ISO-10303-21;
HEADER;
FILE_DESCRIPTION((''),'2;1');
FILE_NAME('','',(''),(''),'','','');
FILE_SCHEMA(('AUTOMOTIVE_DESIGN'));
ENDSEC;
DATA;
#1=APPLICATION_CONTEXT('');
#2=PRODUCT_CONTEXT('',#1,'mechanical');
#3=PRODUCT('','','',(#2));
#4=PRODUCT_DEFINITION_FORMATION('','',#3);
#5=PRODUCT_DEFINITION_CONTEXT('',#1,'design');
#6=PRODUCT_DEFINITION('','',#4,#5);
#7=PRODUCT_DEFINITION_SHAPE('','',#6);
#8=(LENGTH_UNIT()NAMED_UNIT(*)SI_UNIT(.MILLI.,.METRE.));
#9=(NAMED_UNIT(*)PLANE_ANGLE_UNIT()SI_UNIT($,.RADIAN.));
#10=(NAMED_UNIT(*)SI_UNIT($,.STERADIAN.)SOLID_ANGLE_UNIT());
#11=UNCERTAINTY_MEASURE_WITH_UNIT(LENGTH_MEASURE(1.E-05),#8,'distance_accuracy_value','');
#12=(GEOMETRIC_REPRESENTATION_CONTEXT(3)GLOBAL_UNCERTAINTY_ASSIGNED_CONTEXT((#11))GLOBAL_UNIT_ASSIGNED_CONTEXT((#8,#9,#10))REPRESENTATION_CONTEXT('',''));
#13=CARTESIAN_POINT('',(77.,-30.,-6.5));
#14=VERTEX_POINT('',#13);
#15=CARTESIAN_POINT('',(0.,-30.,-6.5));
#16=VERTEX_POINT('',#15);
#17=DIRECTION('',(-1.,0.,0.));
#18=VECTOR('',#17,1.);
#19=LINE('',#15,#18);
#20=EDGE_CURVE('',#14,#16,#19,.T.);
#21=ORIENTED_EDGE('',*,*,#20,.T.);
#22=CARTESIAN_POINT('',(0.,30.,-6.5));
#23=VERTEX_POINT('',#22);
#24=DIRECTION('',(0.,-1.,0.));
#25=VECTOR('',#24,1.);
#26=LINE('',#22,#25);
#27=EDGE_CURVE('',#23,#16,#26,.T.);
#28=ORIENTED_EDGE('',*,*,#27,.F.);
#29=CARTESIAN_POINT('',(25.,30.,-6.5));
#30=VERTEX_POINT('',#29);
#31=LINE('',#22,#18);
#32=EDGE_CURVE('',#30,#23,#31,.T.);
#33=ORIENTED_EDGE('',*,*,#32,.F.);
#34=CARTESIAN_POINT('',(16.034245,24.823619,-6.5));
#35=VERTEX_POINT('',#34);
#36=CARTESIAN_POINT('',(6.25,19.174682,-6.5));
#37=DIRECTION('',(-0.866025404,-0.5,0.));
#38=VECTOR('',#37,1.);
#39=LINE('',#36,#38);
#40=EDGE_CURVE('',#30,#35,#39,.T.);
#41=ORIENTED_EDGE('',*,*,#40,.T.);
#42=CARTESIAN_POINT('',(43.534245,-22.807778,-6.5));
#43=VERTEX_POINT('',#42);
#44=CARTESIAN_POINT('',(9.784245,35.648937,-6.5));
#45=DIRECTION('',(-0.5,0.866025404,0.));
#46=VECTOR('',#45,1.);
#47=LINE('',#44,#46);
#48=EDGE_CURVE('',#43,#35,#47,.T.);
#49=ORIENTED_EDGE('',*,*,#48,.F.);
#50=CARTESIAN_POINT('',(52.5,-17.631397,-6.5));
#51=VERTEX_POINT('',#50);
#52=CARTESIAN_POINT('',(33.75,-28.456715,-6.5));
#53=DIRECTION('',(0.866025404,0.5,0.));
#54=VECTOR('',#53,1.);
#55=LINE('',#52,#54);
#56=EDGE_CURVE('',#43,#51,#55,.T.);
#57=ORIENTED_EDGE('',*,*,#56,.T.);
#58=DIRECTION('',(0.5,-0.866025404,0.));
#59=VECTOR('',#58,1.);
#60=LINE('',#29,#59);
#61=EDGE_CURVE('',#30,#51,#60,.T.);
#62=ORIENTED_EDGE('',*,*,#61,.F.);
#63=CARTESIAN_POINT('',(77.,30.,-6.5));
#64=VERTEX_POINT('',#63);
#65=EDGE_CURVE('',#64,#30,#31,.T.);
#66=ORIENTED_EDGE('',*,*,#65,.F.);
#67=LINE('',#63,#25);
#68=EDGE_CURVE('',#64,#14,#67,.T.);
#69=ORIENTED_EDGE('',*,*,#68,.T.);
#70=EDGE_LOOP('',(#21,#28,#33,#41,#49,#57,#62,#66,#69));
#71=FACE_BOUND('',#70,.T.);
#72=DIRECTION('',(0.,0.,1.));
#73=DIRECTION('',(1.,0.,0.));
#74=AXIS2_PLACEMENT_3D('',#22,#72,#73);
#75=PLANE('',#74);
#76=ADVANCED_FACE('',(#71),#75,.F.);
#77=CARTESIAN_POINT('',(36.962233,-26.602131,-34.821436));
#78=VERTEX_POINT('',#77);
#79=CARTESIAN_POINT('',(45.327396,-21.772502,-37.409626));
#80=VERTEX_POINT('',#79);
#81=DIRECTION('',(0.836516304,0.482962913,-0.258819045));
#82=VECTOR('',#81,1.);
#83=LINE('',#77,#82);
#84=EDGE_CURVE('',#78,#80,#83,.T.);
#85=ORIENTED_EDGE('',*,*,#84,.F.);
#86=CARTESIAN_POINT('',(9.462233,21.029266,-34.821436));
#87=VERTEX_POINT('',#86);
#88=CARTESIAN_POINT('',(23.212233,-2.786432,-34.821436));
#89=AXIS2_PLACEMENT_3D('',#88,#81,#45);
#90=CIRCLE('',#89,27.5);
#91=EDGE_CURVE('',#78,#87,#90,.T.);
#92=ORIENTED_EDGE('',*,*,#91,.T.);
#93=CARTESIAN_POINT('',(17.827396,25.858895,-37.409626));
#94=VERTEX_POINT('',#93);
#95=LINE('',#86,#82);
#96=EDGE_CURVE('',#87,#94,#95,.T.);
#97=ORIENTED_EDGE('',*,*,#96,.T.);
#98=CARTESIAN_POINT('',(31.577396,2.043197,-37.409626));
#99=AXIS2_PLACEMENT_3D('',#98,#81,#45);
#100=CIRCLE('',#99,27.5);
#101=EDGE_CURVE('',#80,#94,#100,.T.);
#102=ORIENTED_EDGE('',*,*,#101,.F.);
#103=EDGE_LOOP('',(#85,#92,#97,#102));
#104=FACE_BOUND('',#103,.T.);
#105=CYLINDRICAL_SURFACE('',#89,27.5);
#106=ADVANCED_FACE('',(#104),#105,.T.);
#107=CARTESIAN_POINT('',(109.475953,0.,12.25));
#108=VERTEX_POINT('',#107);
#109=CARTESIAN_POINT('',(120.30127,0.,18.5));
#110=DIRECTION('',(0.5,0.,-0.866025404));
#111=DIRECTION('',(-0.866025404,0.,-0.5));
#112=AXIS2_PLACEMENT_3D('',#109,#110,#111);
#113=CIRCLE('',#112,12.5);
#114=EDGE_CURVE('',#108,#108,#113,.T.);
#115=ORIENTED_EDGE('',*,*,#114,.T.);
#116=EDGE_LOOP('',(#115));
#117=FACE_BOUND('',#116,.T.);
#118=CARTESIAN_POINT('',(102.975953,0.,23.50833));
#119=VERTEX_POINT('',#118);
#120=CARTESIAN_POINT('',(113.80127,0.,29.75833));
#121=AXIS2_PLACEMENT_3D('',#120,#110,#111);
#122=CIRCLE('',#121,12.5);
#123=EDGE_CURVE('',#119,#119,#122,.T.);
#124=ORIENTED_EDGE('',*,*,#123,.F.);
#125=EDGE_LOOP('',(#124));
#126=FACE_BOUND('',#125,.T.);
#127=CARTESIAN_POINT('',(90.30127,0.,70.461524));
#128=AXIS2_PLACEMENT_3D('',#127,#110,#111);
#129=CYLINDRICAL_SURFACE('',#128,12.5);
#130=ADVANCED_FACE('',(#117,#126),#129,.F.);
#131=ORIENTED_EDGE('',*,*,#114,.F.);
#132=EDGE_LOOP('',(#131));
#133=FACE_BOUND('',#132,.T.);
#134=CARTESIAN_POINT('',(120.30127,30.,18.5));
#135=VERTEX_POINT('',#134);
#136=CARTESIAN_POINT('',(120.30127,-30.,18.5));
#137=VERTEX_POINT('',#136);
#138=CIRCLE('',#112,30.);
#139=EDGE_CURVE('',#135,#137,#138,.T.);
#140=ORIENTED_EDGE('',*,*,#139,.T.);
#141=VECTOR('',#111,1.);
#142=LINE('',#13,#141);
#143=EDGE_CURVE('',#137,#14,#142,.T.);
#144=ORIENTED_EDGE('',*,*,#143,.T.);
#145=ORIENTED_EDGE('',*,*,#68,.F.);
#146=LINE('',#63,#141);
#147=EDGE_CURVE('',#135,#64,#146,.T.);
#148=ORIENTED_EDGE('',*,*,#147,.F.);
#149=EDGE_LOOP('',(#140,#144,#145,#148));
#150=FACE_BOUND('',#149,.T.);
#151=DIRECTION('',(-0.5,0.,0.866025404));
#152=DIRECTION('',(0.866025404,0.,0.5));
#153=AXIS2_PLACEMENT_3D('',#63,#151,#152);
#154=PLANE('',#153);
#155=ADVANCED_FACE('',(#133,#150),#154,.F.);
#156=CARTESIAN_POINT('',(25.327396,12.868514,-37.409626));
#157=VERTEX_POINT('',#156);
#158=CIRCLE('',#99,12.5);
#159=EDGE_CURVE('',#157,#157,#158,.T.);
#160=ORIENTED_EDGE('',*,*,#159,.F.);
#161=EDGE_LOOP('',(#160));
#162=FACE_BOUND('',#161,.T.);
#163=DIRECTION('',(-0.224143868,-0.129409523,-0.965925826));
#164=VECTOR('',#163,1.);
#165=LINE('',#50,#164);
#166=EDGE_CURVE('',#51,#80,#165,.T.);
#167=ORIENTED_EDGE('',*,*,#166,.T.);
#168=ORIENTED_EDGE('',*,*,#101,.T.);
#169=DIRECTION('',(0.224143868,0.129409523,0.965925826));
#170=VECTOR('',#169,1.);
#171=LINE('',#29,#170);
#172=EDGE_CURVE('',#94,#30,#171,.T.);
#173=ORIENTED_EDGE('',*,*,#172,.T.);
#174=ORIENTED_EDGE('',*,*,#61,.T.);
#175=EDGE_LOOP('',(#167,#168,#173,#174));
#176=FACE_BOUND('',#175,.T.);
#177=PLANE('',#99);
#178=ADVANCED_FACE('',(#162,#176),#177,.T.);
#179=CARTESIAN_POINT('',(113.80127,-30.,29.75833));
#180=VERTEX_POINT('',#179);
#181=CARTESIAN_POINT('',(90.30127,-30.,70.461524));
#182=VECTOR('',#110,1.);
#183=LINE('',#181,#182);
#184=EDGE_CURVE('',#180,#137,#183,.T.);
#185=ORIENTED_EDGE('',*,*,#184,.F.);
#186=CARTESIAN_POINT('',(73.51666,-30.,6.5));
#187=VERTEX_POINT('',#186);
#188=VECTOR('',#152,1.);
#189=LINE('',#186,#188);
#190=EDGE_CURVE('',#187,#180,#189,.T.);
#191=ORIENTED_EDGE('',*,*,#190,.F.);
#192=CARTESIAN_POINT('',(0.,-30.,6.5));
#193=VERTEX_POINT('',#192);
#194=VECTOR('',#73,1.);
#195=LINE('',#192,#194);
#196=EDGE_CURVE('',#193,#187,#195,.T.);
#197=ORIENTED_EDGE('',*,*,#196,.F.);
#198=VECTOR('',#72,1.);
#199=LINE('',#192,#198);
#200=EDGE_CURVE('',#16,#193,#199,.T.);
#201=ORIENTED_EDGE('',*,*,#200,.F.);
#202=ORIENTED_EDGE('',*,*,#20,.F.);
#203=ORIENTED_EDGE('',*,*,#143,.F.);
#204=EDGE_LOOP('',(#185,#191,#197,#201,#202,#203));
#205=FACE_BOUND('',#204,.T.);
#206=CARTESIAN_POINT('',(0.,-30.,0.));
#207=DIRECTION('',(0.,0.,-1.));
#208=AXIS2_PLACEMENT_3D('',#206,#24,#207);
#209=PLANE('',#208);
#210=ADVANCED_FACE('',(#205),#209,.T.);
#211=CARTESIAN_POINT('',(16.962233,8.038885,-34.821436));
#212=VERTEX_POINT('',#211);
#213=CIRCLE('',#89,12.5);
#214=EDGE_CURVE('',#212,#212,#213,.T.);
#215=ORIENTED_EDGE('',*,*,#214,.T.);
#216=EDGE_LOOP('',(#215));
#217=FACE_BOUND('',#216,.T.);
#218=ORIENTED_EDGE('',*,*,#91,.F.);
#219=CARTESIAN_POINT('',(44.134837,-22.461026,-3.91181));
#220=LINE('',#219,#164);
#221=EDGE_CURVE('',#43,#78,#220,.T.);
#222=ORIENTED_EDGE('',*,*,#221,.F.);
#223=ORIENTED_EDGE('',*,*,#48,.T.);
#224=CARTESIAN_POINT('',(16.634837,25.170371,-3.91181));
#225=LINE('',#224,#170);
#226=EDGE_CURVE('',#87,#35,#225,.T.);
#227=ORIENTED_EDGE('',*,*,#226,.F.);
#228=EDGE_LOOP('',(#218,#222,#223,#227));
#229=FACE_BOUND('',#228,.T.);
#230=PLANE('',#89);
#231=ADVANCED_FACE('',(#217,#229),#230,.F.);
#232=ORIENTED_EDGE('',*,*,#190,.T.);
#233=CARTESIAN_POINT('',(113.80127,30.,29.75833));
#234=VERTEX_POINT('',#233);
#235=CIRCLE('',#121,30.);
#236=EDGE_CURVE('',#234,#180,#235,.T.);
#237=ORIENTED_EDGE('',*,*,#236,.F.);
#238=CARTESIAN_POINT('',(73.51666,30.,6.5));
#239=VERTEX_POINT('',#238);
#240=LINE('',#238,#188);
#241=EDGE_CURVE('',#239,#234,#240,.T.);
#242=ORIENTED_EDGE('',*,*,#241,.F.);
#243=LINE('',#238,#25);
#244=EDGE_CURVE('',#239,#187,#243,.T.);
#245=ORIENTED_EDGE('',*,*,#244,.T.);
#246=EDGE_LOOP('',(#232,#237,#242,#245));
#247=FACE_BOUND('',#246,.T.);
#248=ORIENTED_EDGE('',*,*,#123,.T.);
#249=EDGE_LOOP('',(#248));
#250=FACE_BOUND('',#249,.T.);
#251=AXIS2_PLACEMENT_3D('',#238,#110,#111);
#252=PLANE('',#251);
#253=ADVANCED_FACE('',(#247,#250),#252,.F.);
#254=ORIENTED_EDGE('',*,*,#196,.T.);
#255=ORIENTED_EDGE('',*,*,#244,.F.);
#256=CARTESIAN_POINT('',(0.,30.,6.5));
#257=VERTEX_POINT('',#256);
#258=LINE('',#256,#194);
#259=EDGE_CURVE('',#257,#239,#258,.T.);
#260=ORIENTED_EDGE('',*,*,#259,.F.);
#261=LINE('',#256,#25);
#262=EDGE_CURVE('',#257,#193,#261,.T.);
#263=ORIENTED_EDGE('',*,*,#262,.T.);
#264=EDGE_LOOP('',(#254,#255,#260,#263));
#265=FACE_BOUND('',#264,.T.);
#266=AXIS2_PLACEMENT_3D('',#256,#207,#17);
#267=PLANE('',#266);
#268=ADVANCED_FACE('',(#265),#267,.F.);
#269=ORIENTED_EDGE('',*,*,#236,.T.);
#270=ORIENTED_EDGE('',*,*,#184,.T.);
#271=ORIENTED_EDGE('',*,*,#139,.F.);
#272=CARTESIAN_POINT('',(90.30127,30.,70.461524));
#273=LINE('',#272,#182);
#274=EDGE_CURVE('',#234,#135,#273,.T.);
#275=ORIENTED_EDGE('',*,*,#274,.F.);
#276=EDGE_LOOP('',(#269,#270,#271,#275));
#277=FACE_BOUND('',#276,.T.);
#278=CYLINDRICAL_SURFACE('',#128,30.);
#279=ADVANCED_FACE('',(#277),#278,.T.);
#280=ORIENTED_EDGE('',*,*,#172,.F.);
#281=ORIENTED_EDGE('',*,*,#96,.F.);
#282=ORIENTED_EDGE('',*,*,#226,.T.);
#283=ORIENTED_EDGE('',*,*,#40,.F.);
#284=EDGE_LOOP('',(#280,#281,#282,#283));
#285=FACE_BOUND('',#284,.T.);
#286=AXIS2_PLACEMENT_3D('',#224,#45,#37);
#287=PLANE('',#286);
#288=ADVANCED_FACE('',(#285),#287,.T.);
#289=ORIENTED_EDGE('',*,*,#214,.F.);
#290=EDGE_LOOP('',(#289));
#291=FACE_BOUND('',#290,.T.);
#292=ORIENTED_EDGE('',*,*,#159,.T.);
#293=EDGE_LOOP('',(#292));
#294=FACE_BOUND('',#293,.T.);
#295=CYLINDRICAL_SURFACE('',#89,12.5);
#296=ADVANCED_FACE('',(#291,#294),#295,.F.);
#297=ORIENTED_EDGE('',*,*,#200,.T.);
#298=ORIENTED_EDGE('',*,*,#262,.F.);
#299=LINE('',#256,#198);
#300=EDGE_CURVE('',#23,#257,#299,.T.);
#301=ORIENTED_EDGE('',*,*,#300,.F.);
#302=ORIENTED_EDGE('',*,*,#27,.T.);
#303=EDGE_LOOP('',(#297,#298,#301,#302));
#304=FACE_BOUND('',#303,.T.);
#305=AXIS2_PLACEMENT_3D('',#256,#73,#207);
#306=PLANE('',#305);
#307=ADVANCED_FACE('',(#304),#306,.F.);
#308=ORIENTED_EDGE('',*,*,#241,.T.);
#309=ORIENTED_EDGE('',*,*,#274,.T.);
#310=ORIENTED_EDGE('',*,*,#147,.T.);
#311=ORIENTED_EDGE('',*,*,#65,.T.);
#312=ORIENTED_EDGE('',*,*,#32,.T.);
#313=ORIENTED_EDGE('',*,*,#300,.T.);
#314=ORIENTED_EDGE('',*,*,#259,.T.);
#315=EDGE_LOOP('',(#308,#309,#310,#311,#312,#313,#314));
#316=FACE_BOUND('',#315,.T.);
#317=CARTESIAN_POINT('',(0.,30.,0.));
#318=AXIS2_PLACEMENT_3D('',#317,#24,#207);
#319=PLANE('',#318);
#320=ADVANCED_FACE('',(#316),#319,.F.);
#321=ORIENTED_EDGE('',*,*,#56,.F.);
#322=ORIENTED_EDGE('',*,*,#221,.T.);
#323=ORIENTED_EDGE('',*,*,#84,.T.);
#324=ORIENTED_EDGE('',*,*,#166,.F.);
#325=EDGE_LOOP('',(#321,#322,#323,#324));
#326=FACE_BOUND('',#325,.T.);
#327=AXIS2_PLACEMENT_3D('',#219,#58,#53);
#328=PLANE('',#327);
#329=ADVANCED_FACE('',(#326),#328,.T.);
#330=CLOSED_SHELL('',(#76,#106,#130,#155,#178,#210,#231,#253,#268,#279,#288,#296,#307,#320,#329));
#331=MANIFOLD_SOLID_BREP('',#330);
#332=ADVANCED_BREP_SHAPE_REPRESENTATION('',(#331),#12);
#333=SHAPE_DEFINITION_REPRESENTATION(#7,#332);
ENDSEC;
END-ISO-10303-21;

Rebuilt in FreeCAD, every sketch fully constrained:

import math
import FreeCAD as App
import Part
import Sketcher

V = App.Vector
Q = App.Units.Quantity


def add_polygon(sketch, points):
    """Adds a closed chain of lines whose ends are joined by coincident constraints."""
    first, n = sketch.GeometryCount, len(points)
    for a, b in zip(points, points[1:] + points[:1]):
        sketch.addGeometry(Part.LineSegment(App.Vector(*a, 0), App.Vector(*b, 0)), False)
    for i in range(n):
        sketch.addConstraint(Sketcher.Constraint("Coincident", first + i, 2, first + (i + 1) % n, 1))

doc = App.newDocument("Part")
body = doc.addObject("PartDesign::Body", "Body")

sketch1 = body.newObject("Sketcher::SketchObject", "Sketch")
sketch1.AttachmentSupport = (doc.getObject("XZ_Plane"), [""])
sketch1.MapMode = "FlatFace"
add_polygon(sketch1, [(0, 6), (74, 6), (140, 45), (146, 34), (77, -6), (0, -6)])
sketch1.addConstraint([
    Sketcher.Constraint("Horizontal", 0),
    Sketcher.Constraint("Horizontal", 4),
    Sketcher.Constraint("Vertical", 5),
    Sketcher.Constraint("Symmetric", 4, 2, 5, 2, -1, 1),
    Sketcher.Constraint("Perpendicular", 1, 2),
    Sketcher.Constraint("Perpendicular", 2, 3),
    Sketcher.Constraint("DistanceX", 4, 2, 4, 1, 77.0),
    Sketcher.Constraint("DistanceY", 5, 1, 5, 2, 13.0),
    Sketcher.Constraint("Angle", 1, Q("30 deg")),
    Sketcher.Constraint("Distance", 2, 13.0),
    Sketcher.Constraint("Distance", 3, 80.0),
])
pad1 = body.newObject("PartDesign::Pad", "Pad")
pad1.Profile = sketch1
pad1.Length = 60
pad1.Midplane = True

sketch2 = body.newObject("Sketcher::SketchObject", "Sketch001")
sketch2.Placement = App.Placement(V(22.064583, 0, -38.216978), App.Rotation(V(-0.866025404, 0, -0.5), V(0, 1, 0), V(0.5, 0, -0.866025404), "ZXY"))
sketch2.addGeometry([
    Part.Circle(V(-113, 0, 0), V(0, 0, 1), 12),
    Part.LineSegment(V(-143, 30, 0), V(-143, 0, 0)),
    Part.ArcOfCircle(Part.Circle(V(-113, 0, 0), V(0, 0, 1), 30), math.radians(90), math.radians(180)),
    Part.LineSegment(V(-113, 30, 0), V(-143, 30, 0)),
    Part.LineSegment(V(-143, 0, 0), V(-143, -30, 0)),
    Part.LineSegment(V(-143, -30, 0), V(-113, -30, 0)),
    Part.ArcOfCircle(Part.Circle(V(-113, 0, 0), V(0, 0, 1), 30), math.radians(180), math.radians(270)),
], False)
sketch2.addConstraint([
    Sketcher.Constraint("Tangent", 1, 2, 2, 2),
    Sketcher.Constraint("Tangent", 2, 1, 3, 1),
    Sketcher.Constraint("Coincident", 3, 2, 1, 1),
    Sketcher.Constraint("Coincident", 4, 2, 5, 1),
    Sketcher.Constraint("Tangent", 5, 2, 6, 2),
    Sketcher.Constraint("Tangent", 6, 1, 4, 1),
    Sketcher.Constraint("Vertical", 1),
    Sketcher.Constraint("Horizontal", 3),
    Sketcher.Constraint("Vertical", 4),
    Sketcher.Constraint("Horizontal", 5),
    Sketcher.Constraint("Coincident", 2, 3, 0, 3),
    Sketcher.Constraint("Coincident", 6, 3, 0, 3),
    Sketcher.Constraint("Equal", 2, 6),
    Sketcher.Constraint("PointOnObject", 0, 3, -1),
    Sketcher.Constraint("Diameter", 0, 25.0),
    Sketcher.Constraint("Radius", 2, 30.0),
    Sketcher.Constraint("DistanceX", 0, 3, -1, 1, 113.433956),
])
pocket1 = body.newObject("PartDesign::Pocket", "Pocket")
pocket1.Profile = sketch2
pocket1.Length = 60

sketch3 = body.newObject("Sketcher::SketchObject", "Sketch002")
sketch3.Placement = App.Placement(V(31.02147, 17.910254, -9.598076), App.Rotation(V(0.5, -0.866025404, 0), V(-0.224143868, -0.129409523, -0.965925827), V(0.836516304, 0.482962913, -0.258819045), "ZXY"))
sketch3.addGeometry([
    Part.LineSegment(V(-13, -3, 0), V(42, -3, 0)),
    Part.LineSegment(V(42, -3, 0), V(42, 29, 0)),
    Part.ArcOfCircle(Part.Circle(V(14, 29, 0), V(0, 0, 1), 28), math.radians(0), math.radians(180)),
    Part.LineSegment(V(-13, 29, 0), V(-13, -3, 0)),
    Part.Circle(V(14, 29, 0), V(0, 0, 1), 12),
], False)
sketch3.addConstraint([
    Sketcher.Constraint("Coincident", 0, 2, 1, 1),
    Sketcher.Constraint("Tangent", 1, 2, 2, 1),
    Sketcher.Constraint("Tangent", 2, 2, 3, 1),
    Sketcher.Constraint("Coincident", 3, 2, 0, 1),
    Sketcher.Constraint("Horizontal", 0),
    Sketcher.Constraint("Vertical", 1),
    Sketcher.Constraint("Vertical", 3),
    Sketcher.Constraint("Coincident", 4, 3, 2, 3),
    Sketcher.Constraint("Diameter", 4, 25.0),
    Sketcher.Constraint("Radius", 2, 27.5),
    Sketcher.Constraint("DistanceY", 1, 1, 1, 2, 32.0),
    Sketcher.Constraint("DistanceX", -1, 1, 2, 3, 14.019238),
    Sketcher.Constraint("DistanceY", -1, 1, 2, 3, 28.792636),
])
pad2 = body.newObject("PartDesign::Pad", "Pad001")
pad2.Profile = sketch3
pad2.Length = 10
pad2.Reversed = True

doc.recompute()
